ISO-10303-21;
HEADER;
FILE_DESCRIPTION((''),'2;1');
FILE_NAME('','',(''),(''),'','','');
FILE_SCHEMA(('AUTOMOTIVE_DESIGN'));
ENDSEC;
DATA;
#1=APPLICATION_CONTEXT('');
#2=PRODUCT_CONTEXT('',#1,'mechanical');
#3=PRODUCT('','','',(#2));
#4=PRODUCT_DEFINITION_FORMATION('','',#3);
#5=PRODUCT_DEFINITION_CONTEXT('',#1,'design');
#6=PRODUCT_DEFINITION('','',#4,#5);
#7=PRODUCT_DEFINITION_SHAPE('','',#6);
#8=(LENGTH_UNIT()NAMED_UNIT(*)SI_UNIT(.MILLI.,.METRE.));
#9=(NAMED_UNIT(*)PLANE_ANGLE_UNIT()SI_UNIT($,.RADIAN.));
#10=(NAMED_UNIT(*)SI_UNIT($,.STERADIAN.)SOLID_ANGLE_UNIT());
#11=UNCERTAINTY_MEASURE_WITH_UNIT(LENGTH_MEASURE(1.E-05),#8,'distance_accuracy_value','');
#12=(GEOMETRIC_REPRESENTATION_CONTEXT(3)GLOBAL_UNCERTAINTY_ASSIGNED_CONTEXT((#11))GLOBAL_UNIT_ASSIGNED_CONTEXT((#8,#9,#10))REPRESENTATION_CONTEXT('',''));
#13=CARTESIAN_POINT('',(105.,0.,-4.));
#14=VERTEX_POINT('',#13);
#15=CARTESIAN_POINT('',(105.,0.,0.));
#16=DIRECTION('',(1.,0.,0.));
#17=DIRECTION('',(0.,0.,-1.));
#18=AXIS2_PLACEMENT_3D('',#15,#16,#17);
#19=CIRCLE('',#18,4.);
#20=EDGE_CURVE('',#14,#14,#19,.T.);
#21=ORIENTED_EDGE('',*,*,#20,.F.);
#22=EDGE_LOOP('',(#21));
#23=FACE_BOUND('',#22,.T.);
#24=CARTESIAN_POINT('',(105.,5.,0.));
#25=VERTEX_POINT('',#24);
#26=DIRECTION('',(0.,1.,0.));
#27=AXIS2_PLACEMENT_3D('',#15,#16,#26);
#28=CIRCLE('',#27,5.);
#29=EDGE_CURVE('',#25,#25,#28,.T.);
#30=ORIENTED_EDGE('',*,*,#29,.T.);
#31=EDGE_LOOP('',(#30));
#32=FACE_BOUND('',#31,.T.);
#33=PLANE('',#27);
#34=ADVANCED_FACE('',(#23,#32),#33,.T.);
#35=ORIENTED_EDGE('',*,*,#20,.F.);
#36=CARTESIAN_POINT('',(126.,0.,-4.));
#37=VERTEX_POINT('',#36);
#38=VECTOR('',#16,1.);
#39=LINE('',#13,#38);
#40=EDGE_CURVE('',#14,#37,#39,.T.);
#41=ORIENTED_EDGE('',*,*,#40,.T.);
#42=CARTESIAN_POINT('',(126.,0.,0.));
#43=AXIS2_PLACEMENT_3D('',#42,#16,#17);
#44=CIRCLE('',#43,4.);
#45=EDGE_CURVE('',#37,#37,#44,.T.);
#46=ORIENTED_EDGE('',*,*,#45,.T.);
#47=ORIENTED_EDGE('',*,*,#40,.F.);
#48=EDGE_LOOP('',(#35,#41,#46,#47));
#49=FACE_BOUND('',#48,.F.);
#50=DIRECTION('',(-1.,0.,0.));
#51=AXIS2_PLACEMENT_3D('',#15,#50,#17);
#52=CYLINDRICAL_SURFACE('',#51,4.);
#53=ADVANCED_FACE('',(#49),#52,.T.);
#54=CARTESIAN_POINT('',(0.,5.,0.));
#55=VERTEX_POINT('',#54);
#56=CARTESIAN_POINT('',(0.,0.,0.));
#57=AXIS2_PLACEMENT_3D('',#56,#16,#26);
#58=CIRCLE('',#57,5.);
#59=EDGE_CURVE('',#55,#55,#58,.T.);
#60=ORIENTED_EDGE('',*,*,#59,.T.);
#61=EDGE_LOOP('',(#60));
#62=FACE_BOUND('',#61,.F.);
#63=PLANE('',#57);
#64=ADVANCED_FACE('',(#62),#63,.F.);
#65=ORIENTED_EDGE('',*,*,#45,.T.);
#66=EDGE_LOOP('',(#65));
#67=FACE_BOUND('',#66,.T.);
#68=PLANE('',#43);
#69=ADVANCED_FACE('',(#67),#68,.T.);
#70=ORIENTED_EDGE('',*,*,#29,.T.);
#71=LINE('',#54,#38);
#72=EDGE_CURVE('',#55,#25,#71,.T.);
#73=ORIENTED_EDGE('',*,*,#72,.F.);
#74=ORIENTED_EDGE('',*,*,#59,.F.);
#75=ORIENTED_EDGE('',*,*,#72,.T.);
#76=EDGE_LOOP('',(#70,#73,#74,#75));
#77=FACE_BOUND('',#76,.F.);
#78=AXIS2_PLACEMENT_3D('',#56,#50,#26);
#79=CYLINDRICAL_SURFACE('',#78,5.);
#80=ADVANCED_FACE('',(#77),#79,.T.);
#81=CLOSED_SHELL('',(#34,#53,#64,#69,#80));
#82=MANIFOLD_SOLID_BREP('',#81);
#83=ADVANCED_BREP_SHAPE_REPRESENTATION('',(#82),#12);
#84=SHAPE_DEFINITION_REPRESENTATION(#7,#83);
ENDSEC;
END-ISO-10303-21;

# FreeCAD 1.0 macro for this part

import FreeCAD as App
import Part
import Sketcher

V = App.Vector

doc = App.newDocument("Part")
params = doc.addObject("Spreadsheet::Sheet", "Params")
for row, (alias, value) in enumerate([
    ("sketch1_diameter", "10 mm"),
    ("pad1_length", "105 mm"),
    ("sketch2_diameter", "8 mm"),
    ("pad2_length", "21 mm"),
], start=1):
    params.set(f"A{row}", alias)
    params.set(f"B{row}", "=" + value)
    params.setAlias(f"B{row}", alias)

body = doc.addObject("PartDesign::Body", "Body")

# Sketch on YZ plane
sketch1 = doc.addObject("Sketcher::SketchObject", "Sketch")
body.addObject(sketch1)
sketch1.AttachmentSupport = (doc.YZ_Plane, [""])
sketch1.MapMode = "FlatFace"
sketch1.addGeometry(Part.Circle(V(0, 0, 0), V(0, 0, 1), 5), False)
sketch1.addConstraint(Sketcher.Constraint("Coincident", 0, 3, -1, 1))
sketch1.addConstraint(Sketcher.Constraint("Diameter", 0, 10.0))
sketch1.setExpression("Constraints[1]", "Params.sketch1_diameter")
pad1 = doc.addObject("PartDesign::Pad", "Pad")
body.addObject(pad1)
pad1.Profile = sketch1
pad1.setExpression("Length", "Params.pad1_length")

# Sketch on YZ plane
sketch2 = doc.addObject("Sketcher::SketchObject", "Sketch001")
body.addObject(sketch2)
sketch2.AttachmentSupport = (doc.YZ_Plane, [""])
sketch2.MapMode = "FlatFace"
sketch2.AttachmentOffset = App.Placement(V(0, 0, 105), App.Rotation())
sketch2.addGeometry(Part.Circle(V(0, 0, 0), V(0, 0, 1), 4), False)
sketch2.addConstraint(Sketcher.Constraint("Coincident", 0, 3, -1, 1))
sketch2.addConstraint(Sketcher.Constraint("Diameter", 0, 8.0))
sketch2.setExpression("Constraints[1]", "Params.sketch2_diameter")
pad2 = doc.addObject("PartDesign::Pad", "Pad001")
body.addObject(pad2)
pad2.Profile = sketch2
pad2.setExpression("Length", "Params.pad2_length")

doc.recompute()
